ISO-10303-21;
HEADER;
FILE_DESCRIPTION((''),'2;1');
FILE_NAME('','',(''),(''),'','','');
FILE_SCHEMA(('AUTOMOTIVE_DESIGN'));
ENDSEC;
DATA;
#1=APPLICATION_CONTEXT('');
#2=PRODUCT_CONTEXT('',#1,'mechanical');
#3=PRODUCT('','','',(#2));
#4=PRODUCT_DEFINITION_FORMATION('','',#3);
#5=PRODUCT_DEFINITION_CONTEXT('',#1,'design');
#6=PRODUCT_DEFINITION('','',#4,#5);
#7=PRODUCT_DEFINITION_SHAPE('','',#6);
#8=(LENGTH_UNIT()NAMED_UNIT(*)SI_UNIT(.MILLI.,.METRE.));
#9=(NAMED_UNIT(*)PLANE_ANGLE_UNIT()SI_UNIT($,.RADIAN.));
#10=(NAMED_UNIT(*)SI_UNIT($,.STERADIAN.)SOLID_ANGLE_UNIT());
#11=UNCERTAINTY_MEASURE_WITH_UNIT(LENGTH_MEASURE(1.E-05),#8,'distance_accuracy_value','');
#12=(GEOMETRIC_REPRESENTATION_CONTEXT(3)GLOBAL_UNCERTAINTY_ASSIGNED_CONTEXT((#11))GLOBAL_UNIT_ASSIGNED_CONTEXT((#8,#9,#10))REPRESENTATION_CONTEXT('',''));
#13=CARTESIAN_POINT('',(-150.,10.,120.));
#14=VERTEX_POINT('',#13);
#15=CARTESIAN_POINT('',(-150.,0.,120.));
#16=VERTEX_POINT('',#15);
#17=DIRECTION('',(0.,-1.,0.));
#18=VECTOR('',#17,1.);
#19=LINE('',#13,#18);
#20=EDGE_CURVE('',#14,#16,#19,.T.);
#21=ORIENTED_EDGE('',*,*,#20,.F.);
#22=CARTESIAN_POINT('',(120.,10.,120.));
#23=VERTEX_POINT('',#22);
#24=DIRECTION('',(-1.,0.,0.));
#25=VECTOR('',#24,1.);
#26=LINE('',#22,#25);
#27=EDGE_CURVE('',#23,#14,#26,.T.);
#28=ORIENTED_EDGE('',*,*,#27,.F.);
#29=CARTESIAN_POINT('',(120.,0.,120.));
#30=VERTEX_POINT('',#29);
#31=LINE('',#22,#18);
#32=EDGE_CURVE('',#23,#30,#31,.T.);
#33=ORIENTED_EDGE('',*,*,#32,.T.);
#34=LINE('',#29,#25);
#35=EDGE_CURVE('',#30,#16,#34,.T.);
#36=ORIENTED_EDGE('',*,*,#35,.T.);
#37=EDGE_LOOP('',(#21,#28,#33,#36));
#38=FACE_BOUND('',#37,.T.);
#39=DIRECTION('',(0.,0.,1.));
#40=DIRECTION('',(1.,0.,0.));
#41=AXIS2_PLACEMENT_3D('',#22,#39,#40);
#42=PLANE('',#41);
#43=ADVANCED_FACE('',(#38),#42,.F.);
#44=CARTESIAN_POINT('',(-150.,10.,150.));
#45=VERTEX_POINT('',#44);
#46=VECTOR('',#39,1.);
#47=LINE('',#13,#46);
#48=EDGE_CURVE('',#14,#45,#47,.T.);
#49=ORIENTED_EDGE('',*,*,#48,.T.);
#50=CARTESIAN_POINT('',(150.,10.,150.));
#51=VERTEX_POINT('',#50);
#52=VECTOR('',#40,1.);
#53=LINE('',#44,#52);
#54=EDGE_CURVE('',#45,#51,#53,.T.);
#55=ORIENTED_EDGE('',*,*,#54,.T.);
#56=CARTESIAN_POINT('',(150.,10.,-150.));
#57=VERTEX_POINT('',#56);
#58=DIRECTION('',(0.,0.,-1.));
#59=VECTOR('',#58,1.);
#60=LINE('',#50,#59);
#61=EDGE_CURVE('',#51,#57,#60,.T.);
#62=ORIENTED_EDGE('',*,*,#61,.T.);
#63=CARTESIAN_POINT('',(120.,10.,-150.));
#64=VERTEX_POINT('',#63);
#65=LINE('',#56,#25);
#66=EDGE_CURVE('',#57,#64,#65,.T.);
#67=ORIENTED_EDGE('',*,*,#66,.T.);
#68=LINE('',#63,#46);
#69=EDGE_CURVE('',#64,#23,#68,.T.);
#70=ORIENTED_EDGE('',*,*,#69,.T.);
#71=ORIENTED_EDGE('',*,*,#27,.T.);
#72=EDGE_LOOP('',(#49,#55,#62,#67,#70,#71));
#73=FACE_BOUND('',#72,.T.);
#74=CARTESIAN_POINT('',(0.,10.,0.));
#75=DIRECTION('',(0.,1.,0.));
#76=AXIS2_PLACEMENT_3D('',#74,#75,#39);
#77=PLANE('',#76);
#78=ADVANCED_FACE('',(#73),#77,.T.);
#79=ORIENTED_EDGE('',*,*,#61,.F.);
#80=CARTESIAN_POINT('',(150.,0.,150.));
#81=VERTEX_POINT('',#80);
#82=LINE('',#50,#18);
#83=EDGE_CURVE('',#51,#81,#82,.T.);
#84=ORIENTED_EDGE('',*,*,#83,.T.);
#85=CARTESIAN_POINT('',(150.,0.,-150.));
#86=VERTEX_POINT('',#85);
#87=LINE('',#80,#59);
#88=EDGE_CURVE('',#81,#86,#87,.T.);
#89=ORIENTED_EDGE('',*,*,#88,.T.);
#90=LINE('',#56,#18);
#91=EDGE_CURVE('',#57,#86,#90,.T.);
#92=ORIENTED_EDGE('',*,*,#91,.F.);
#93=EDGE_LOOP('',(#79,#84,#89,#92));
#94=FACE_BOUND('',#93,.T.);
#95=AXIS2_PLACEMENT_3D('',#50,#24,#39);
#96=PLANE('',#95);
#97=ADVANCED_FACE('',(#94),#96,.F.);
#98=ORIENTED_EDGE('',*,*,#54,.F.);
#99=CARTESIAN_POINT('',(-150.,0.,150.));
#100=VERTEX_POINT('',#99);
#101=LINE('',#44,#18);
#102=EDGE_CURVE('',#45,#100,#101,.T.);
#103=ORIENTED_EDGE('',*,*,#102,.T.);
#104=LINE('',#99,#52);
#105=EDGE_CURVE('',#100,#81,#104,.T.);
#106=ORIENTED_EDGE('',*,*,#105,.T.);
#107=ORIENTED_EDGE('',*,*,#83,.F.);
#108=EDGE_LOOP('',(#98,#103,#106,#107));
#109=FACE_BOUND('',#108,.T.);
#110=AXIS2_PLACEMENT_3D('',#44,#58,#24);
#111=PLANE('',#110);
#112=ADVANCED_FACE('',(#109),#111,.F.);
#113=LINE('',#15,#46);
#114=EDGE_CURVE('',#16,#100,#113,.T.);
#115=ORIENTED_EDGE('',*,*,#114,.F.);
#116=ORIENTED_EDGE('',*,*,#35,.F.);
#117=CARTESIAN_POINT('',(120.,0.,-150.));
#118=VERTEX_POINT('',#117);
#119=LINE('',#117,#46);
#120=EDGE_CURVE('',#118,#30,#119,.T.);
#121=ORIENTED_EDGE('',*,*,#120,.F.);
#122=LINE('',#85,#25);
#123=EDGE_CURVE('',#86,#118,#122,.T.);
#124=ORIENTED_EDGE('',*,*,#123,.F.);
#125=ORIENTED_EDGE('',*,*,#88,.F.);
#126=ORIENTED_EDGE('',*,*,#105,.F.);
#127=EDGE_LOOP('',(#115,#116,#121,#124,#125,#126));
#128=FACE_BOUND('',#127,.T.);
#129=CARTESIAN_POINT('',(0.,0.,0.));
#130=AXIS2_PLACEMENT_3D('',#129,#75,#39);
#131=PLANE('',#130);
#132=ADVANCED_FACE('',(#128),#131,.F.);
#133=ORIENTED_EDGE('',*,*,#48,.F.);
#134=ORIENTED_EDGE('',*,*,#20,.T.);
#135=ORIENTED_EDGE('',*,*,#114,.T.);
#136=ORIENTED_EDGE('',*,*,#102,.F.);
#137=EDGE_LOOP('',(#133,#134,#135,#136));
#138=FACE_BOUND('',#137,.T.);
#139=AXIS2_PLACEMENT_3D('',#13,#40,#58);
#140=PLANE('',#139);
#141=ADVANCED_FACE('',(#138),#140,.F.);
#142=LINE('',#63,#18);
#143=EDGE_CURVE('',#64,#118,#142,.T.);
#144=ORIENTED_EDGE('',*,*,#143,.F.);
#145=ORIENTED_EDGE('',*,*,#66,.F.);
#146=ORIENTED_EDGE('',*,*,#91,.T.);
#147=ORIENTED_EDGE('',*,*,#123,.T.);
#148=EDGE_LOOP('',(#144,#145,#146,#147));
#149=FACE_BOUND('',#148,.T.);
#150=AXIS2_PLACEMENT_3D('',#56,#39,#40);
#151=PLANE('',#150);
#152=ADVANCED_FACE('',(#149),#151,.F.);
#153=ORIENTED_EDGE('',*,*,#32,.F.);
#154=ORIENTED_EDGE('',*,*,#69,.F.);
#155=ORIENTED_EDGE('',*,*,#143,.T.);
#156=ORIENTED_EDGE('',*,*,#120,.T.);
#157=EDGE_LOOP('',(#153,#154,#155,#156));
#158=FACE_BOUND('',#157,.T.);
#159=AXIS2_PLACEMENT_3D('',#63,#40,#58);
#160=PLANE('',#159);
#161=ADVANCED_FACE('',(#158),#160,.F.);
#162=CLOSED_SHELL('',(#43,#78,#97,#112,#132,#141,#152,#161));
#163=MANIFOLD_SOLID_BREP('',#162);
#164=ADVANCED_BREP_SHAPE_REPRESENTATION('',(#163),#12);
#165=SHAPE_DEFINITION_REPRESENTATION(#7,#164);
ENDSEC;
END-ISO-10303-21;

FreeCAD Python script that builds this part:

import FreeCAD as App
import Part
import Sketcher
from FreeCAD import Vector


def add_polygon(sketch, points):
    """Adds a closed chain of lines whose ends are joined by coincident constraints."""
    first, n = sketch.GeometryCount, len(points)
    for a, b in zip(points, points[1:] + points[:1]):
        sketch.addGeometry(Part.LineSegment(App.Vector(*a, 0), App.Vector(*b, 0)), False)
    for i in range(n):
        sketch.addConstraint(Sketcher.Constraint("Coincident", first + i, 2, first + (i + 1) % n, 1))

doc = App.newDocument("Part")
params = doc.addObject("Spreadsheet::Sheet", "Params")
for row, (alias, value) in enumerate([
    ("sketch1_width", "300 mm"),
    ("sketch1_width2", "30 mm"),
    ("pad1_length", "10 mm"),
], start=1):
    params.set(f"A{row}", alias)
    params.set(f"B{row}", "=" + value)
    params.setAlias(f"B{row}", alias)

body = doc.addObject("PartDesign::Body", "Body")

# Sketch on XZ plane
sketch1 = body.newObject("Sketcher::SketchObject", "Sketch")
sketch1.AttachmentSupport = (doc.getObject("XZ_Plane"), [""])
sketch1.MapMode = "FlatFace"
add_polygon(sketch1, [(-150, 150), (150, 150), (150, -150), (120, -150), (120, 120), (-150, 120)])  # lines 0-5
sketch1.addConstraint([
    Sketcher.Constraint("Horizontal", 0),
    Sketcher.Constraint("Vertical", 1),
    Sketcher.Constraint("Horizontal", 2),
    Sketcher.Constraint("Vertical", 3),
    Sketcher.Constraint("Horizontal", 4),
    Sketcher.Constraint("Vertical", 5),
    Sketcher.Constraint("Symmetric", 1, 2, 5, 2, -1, 1),
    Sketcher.Constraint("Equal", 0, 1),
    Sketcher.Constraint("Equal", 4, 3),
    Sketcher.Constraint("DistanceX", 0, 1, 0, 2, 300.0),
    Sketcher.Constraint("DistanceX", 2, 2, 2, 1, 30.0),
])
sketch1.setExpression("Constraints[15]", "Params.sketch1_width")
sketch1.setExpression("Constraints[16]", "Params.sketch1_width2")
pad1 = body.newObject("PartDesign::Pad", "Pad")
pad1.Profile = sketch1
pad1.setExpression("Length", "Params.pad1_length")
pad1.Reversed = True

doc.recompute()
